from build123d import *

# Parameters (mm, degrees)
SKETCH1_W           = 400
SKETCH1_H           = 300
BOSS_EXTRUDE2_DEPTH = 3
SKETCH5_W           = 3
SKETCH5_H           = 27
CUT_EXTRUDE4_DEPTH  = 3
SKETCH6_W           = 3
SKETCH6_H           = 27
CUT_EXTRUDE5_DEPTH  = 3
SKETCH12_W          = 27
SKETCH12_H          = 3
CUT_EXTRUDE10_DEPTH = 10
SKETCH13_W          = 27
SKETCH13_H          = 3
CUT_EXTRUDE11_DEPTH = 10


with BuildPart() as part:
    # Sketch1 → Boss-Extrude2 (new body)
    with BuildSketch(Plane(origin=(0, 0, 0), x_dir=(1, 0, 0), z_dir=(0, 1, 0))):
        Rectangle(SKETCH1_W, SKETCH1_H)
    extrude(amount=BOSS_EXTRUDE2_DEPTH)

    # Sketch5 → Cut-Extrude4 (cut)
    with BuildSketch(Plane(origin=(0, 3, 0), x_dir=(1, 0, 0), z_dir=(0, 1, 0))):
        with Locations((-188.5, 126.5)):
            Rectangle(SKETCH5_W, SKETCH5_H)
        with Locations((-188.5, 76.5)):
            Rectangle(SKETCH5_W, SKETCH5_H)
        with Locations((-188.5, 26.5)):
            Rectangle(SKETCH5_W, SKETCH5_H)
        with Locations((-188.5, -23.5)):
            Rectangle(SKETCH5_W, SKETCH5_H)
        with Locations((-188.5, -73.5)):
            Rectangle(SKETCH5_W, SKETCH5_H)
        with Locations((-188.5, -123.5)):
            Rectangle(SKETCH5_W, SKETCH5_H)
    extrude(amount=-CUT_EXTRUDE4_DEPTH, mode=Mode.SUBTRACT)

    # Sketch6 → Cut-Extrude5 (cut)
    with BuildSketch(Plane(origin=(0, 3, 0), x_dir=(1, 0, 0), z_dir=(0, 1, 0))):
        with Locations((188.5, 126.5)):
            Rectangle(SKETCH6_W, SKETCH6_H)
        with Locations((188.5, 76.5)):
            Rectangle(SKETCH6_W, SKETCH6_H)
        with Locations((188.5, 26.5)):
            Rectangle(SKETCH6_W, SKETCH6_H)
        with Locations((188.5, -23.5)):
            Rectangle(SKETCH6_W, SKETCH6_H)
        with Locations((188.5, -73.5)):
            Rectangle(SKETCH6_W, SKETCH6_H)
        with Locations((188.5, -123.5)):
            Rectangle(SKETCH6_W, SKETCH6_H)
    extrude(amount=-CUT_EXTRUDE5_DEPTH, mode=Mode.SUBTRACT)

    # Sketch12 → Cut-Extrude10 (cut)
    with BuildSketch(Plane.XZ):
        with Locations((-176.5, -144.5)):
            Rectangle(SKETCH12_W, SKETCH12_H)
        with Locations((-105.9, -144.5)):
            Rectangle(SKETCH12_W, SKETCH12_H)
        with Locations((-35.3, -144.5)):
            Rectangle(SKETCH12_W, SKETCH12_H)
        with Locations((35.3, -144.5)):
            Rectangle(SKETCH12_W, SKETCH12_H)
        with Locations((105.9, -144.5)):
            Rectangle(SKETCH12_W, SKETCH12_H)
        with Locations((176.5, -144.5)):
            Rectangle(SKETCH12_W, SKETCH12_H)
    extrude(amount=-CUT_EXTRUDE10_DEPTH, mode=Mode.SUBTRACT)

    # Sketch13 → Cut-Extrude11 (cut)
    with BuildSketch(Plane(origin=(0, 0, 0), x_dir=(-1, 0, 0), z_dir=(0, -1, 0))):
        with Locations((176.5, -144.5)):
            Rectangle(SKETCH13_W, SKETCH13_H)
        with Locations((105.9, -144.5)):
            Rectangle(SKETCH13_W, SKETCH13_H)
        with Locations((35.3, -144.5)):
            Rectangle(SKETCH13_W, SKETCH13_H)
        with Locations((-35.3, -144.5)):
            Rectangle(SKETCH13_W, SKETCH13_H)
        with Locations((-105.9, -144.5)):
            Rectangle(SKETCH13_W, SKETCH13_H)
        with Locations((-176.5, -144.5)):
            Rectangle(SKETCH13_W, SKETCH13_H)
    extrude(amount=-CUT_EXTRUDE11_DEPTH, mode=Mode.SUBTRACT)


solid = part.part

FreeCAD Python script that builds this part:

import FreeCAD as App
import Part
import Sketcher

V = App.Vector


def add_polygon(sketch, points):
    """Adds a closed chain of lines whose ends are joined by coincident constraints."""
    first, n = sketch.GeometryCount, len(points)
    for a, b in zip(points, points[1:] + points[:1]):
        sketch.addGeometry(Part.LineSegment(App.Vector(*a, 0), App.Vector(*b, 0)), False)
    for i in range(n):
        sketch.addConstraint(Sketcher.Constraint("Coincident", first + i, 2, first + (i + 1) % n, 1))

doc = App.newDocument("Part")
body = doc.addObject("PartDesign::Body", "Body")

sketch1 = body.newObject("Sketcher::SketchObject", "Sketch")
sketch1.AttachmentSupport = (doc.getObject("XZ_Plane"), [""])
sketch1.MapMode = "FlatFace"
add_polygon(sketch1, [(-200, -150), (-200, 150), (200, 150), (200, -150)])
sketch1.addConstraint([
    Sketcher.Constraint("Vertical", 0),
    Sketcher.Constraint("Horizontal", 1),
    Sketcher.Constraint("Vertical", 2),
    Sketcher.Constraint("Horizontal", 3),
    Sketcher.Constraint("Symmetric", 0, 2, 2, 2, -1, 1),
    Sketcher.Constraint("DistanceX", 1, 1, 1, 2, 400.0),
    Sketcher.Constraint("DistanceY", 0, 1, 0, 2, 300.0),
])
pad1 = body.newObject("PartDesign::Pad", "Pad")
pad1.Profile = sketch1
pad1.Length = 3
pad1.Reversed = True

sketch2 = body.newObject("Sketcher::SketchObject", "Sketch001")
sketch2.AttachmentSupport = (doc.getObject("XZ_Plane"), [""])
sketch2.MapMode = "FlatFace"
sketch2.AttachmentOffset = App.Placement(V(0, 0, -3), App.Rotation())
add_polygon(sketch2, [(-190, -140), (-190, -113), (-187, -113), (-187, -140)])
add_polygon(sketch2, [(-190, -90), (-190, -63), (-187, -63), (-187, -90)])
add_polygon(sketch2, [(-190, -40), (-190, -13), (-187, -13), (-187, -40)])
add_polygon(sketch2, [(-190, 10), (-190, 37), (-187, 37), (-187, 10)])
add_polygon(sketch2, [(-190, 60), (-190, 87), (-187, 87), (-187, 60)])
add_polygon(sketch2, [(-190, 110), (-190, 137), (-187, 137), (-187, 110)])
sketch2.addConstraint([
    Sketcher.Constraint("Vertical", 0),
    Sketcher.Constraint("Horizontal", 1),
    Sketcher.Constraint("Vertical", 2),
    Sketcher.Constraint("Horizontal", 3),
    Sketcher.Constraint("Vertical", 4),
    Sketcher.Constraint("Horizontal", 5),
    Sketcher.Constraint("Vertical", 6),
    Sketcher.Constraint("Horizontal", 7),
    Sketcher.Constraint("Vertical", 8),
    Sketcher.Constraint("Horizontal", 9),
    Sketcher.Constraint("Vertical", 10),
    Sketcher.Constraint("Horizontal", 11),
    Sketcher.Constraint("Vertical", 12),
    Sketcher.Constraint("Horizontal", 13),
    Sketcher.Constraint("Vertical", 14),
    Sketcher.Constraint("Horizontal", 15),
    Sketcher.Constraint("Vertical", 16),
    Sketcher.Constraint("Horizontal", 17),
    Sketcher.Constraint("Vertical", 18),
    Sketcher.Constraint("Horizontal", 19),
    Sketcher.Constraint("Vertical", 20),
    Sketcher.Constraint("Horizontal", 21),
    Sketcher.Constraint("Vertical", 22),
    Sketcher.Constraint("Horizontal", 23),
    Sketcher.Constraint("Vertical", 3, 2, 4, 2),
    Sketcher.Constraint("Vertical", 2, 2, 5, 2),
    Sketcher.Constraint("Vertical", 7, 2, 8, 2),
    Sketcher.Constraint("Vertical", 6, 2, 9, 2),
    Sketcher.Constraint("Vertical", 11, 2, 12, 2),
    Sketcher.Constraint("Vertical", 10, 2, 13, 2),
    Sketcher.Constraint("Vertical", 15, 2, 16, 2),
    Sketcher.Constraint("Vertical", 14, 2, 17, 2),
    Sketcher.Constraint("Vertical", 19, 2, 20, 2),
    Sketcher.Constraint("Vertical", 18, 2, 21, 2),
    Sketcher.Constraint("Equal", 2, 4),
    Sketcher.Constraint("Equal", 6, 8),
    Sketcher.Constraint("Equal", 10, 12),
    Sketcher.Constraint("Equal", 14, 16),
    Sketcher.Constraint("Equal", 18, 20),
    Sketcher.Constraint("DistanceX", 1, 1, 1, 2, 3.0),
    Sketcher.Constraint("DistanceY", 0, 1, 0, 2, 27.0),
    Sketcher.Constraint("DistanceX", 0, 2, -1, 1, 190.0),
    Sketcher.Constraint("DistanceY", 0, 2, -1, 1, 113.0),
    Sketcher.Constraint("DistanceY", 4, 2, -1, 1, 63.0),
    Sketcher.Constraint("DistanceY", 8, 2, -1, 1, 13.0),
    Sketcher.Constraint("DistanceY", -1, 1, 12, 2, 37.0),
    Sketcher.Constraint("DistanceY", -1, 1, 16, 2, 87.0),
    Sketcher.Constraint("DistanceY", -1, 1, 20, 2, 137.0),
])
pocket1 = body.newObject("PartDesign::Pocket", "Pocket")
pocket1.Profile = sketch2
pocket1.Length = 3
pocket1.Reversed = True

sketch3 = body.newObject("Sketcher::SketchObject", "Sketch002")
sketch3.AttachmentSupport = (doc.getObject("XZ_Plane"), [""])
sketch3.MapMode = "FlatFace"
sketch3.AttachmentOffset = App.Placement(V(0, 0, -3), App.Rotation())
add_polygon(sketch3, [(187, -140), (187, -113), (190, -113), (190, -140)])
add_polygon(sketch3, [(187, -90), (187, -63), (190, -63), (190, -90)])
add_polygon(sketch3, [(187, -40), (187, -13), (190, -13), (190, -40)])
add_polygon(sketch3, [(187, 10), (187, 37), (190, 37), (190, 10)])
add_polygon(sketch3, [(187, 60), (187, 87), (190, 87), (190, 60)])
add_polygon(sketch3, [(187, 110), (187, 137), (190, 137), (190, 110)])
sketch3.addConstraint([
    Sketcher.Constraint("Vertical", 0),
    Sketcher.Constraint("Horizontal", 1),
    Sketcher.Constraint("Vertical", 2),
    Sketcher.Constraint("Horizontal", 3),
    Sketcher.Constraint("Vertical", 4),
    Sketcher.Constraint("Horizontal", 5),
    Sketcher.Constraint("Vertical", 6),
    Sketcher.Constraint("Horizontal", 7),
    Sketcher.Constraint("Vertical", 8),
    Sketcher.Constraint("Horizontal", 9),
    Sketcher.Constraint("Vertical", 10),
    Sketcher.Constraint("Horizontal", 11),
    Sketcher.Constraint("Vertical", 12),
    Sketcher.Constraint("Horizontal", 13),
    Sketcher.Constraint("Vertical", 14),
    Sketcher.Constraint("Horizontal", 15),
    Sketcher.Constraint("Vertical", 16),
    Sketcher.Constraint("Horizontal", 17),
    Sketcher.Constraint("Vertical", 18),
    Sketcher.Constraint("Horizontal", 19),
    Sketcher.Constraint("Vertical", 20),
    Sketcher.Constraint("Horizontal", 21),
    Sketcher.Constraint("Vertical", 22),
    Sketcher.Constraint("Horizontal", 23),
    Sketcher.Constraint("Vertical", 3, 2, 4, 2),
    Sketcher.Constraint("Vertical", 2, 2, 5, 2),
    Sketcher.Constraint("Vertical", 7, 2, 8, 2),
    Sketcher.Constraint("Vertical", 6, 2, 9, 2),
    Sketcher.Constraint("Vertical", 11, 2, 12, 2),
    Sketcher.Constraint("Vertical", 10, 2, 13, 2),
    Sketcher.Constraint("Vertical", 15, 2, 16, 2),
    Sketcher.Constraint("Vertical", 14, 2, 17, 2),
    Sketcher.Constraint("Vertical", 19, 2, 20, 2),
    Sketcher.Constraint("Vertical", 18, 2, 21, 2),
    Sketcher.Constraint("Equal", 2, 4),
    Sketcher.Constraint("Equal", 6, 8),
    Sketcher.Constraint("Equal", 10, 12),
    Sketcher.Constraint("Equal", 14, 16),
    Sketcher.Constraint("Equal", 18, 20),
    Sketcher.Constraint("DistanceX", 1, 1, 1, 2, 3.0),
    Sketcher.Constraint("DistanceY", 0, 1, 0, 2, 27.0),
    Sketcher.Constraint("DistanceX", -1, 1, 0, 2, 187.0),
    Sketcher.Constraint("DistanceY", 0, 2, -1, 1, 113.0),
    Sketcher.Constraint("DistanceY", 4, 2, -1, 1, 63.0),
    Sketcher.Constraint("DistanceY", 8, 2, -1, 1, 13.0),
    Sketcher.Constraint("DistanceY", -1, 1, 12, 2, 37.0),
    Sketcher.Constraint("DistanceY", -1, 1, 16, 2, 87.0),
    Sketcher.Constraint("DistanceY", -1, 1, 20, 2, 137.0),
])
pocket2 = body.newObject("PartDesign::Pocket", "Pocket001")
pocket2.Profile = sketch3
pocket2.Length = 3
pocket2.Reversed = True

sketch4 = body.newObject("Sketcher::SketchObject", "Sketch003")
sketch4.AttachmentSupport = (doc.getObject("XZ_Plane"), [""])
sketch4.MapMode = "FlatFace"
add_polygon(sketch4, [(-190, -143), (-190, -146), (-163, -146), (-163, -143)])
add_polygon(sketch4, [(-119.4, -143), (-119.4, -146), (-92.4, -146), (-92.4, -143)])
add_polygon(sketch4, [(-48.8, -143), (-48.8, -146), (-21.8, -146), (-21.8, -143)])
add_polygon(sketch4, [(21.8, -143), (21.8, -146), (48.8, -146), (48.8, -143)])
add_polygon(sketch4, [(92.4, -143), (92.4, -146), (119.4, -146), (119.4, -143)])
add_polygon(sketch4, [(163, -143), (163, -146), (190, -146), (190, -143)])
sketch4.addConstraint([
    Sketcher.Constraint("Vertical", 0),
    Sketcher.Constraint("Horizontal", 1),
    Sketcher.Constraint("Vertical", 2),
    Sketcher.Constraint("Horizontal", 3),
    Sketcher.Constraint("Vertical", 4),
    Sketcher.Constraint("Horizontal", 5),
    Sketcher.Constraint("Vertical", 6),
    Sketcher.Constraint("Horizontal", 7),
    Sketcher.Constraint("Vertical", 8),
    Sketcher.Constraint("Horizontal", 9),
    Sketcher.Constraint("Vertical", 10),
    Sketcher.Constraint("Horizontal", 11),
    Sketcher.Constraint("Vertical", 12),
    Sketcher.Constraint("Horizontal", 13),
    Sketcher.Constraint("Vertical", 14),
    Sketcher.Constraint("Horizontal", 15),
    Sketcher.Constraint("Vertical", 16),
    Sketcher.Constraint("Horizontal", 17),
    Sketcher.Constraint("Vertical", 18),
    Sketcher.Constraint("Horizontal", 19),
    Sketcher.Constraint("Vertical", 20),
    Sketcher.Constraint("Horizontal", 21),
    Sketcher.Constraint("Vertical", 22),
    Sketcher.Constraint("Horizontal", 23),
    Sketcher.Constraint("Symmetric", 9, 2, 12, 2, -2),
    Sketcher.Constraint("Symmetric", 11, 2, 14, 2, -2),
    Sketcher.Constraint("Symmetric", 5, 2, 16, 2, -2),
    Sketcher.Constraint("Symmetric", 7, 2, 18, 2, -2),
    Sketcher.Constraint("Symmetric", 1, 2, 20, 2, -2),
    Sketcher.Constraint("Symmetric", 3, 2, 22, 2, -2),
    Sketcher.Constraint("Horizontal", 1, 2, 4, 2),
    Sketcher.Constraint("Horizontal", 3, 2, 6, 2),
    Sketcher.Constraint("Horizontal", 5, 2, 8, 2),
    Sketcher.Constraint("Horizontal", 7, 2, 10, 2),
    Sketcher.Constraint("Equal", 3, 5),
    Sketcher.Constraint("Equal", 7, 9),
    Sketcher.Constraint("DistanceX", 1, 1, 1, 2, 27.0),
    Sketcher.Constraint("DistanceY", 0, 2, 0, 1, 3.0),
    Sketcher.Constraint("DistanceX", 0, 2, -1, 1, 190.0),
    Sketcher.Constraint("DistanceY", 0, 2, -1, 1, 146.0),
    Sketcher.Constraint("DistanceX", 4, 2, -1, 1, 119.4),
    Sketcher.Constraint("DistanceX", 8, 2, -1, 1, 48.8),
])
pocket3 = body.newObject("PartDesign::Pocket", "Pocket002")
pocket3.Profile = sketch4
pocket3.Length = 10

sketch5 = body.newObject("Sketcher::SketchObject", "Sketch004")
sketch5.AttachmentSupport = (doc.getObject("XZ_Plane"), [""])
sketch5.MapMode = "FlatFace"
add_polygon(sketch5, [(-163, 143), (-163, 146), (-190, 146), (-190, 143)])
add_polygon(sketch5, [(-92.4, 143), (-92.4, 146), (-119.4, 146), (-119.4, 143)])
add_polygon(sketch5, [(-21.8, 143), (-21.8, 146), (-48.8, 146), (-48.8, 143)])
add_polygon(sketch5, [(48.8, 143), (48.8, 146), (21.8, 146), (21.8, 143)])
add_polygon(sketch5, [(119.4, 143), (119.4, 146), (92.4, 146), (92.4, 143)])
add_polygon(sketch5, [(190, 143), (190, 146), (163, 146), (163, 143)])
sketch5.addConstraint([
    Sketcher.Constraint("Vertical", 0),
    Sketcher.Constraint("Horizontal", 1),
    Sketcher.Constraint("Vertical", 2),
    Sketcher.Constraint("Horizontal", 3),
    Sketcher.Constraint("Vertical", 4),
    Sketcher.Constraint("Horizontal", 5),
    Sketcher.Constraint("Vertical", 6),
    Sketcher.Constraint("Horizontal", 7),
    Sketcher.Constraint("Vertical", 8),
    Sketcher.Constraint("Horizontal", 9),
    Sketcher.Constraint("Vertical", 10),
    Sketcher.Constraint("Horizontal", 11),
    Sketcher.Constraint("Vertical", 12),
    Sketcher.Constraint("Horizontal", 13),
    Sketcher.Constraint("Vertical", 14),
    Sketcher.Constraint("Horizontal", 15),
    Sketcher.Constraint("Vertical", 16),
    Sketcher.Constraint("Horizontal", 17),
    Sketcher.Constraint("Vertical", 18),
    Sketcher.Constraint("Horizontal", 19),
    Sketcher.Constraint("Vertical", 20),
    Sketcher.Constraint("Horizontal", 21),
    Sketcher.Constraint("Vertical", 22),
    Sketcher.Constraint("Horizontal", 23),
    Sketcher.Constraint("Symmetric", 9, 2, 12, 2, -2),
    Sketcher.Constraint("Symmetric", 11, 2, 14, 2, -2),
    Sketcher.Constraint("Symmetric", 5, 2, 16, 2, -2),
    Sketcher.Constraint("Symmetric", 7, 2, 18, 2, -2),
    Sketcher.Constraint("Symmetric", 1, 2, 20, 2, -2),
    Sketcher.Constraint("Symmetric", 3, 2, 22, 2, -2),
    Sketcher.Constraint("Horizontal", 1, 2, 4, 2),
    Sketcher.Constraint("Horizontal", 3, 2, 6, 2),
    Sketcher.Constraint("Horizontal", 5, 2, 8, 2),
    Sketcher.Constraint("Horizontal", 7, 2, 10, 2),
    Sketcher.Constraint("Equal", 3, 5),
    Sketcher.Constraint("Equal", 7, 9),
    Sketcher.Constraint("DistanceX", 1, 2, 1, 1, 27.0),
    Sketcher.Constraint("DistanceY", 0, 1, 0, 2, 3.0),
    Sketcher.Constraint("DistanceX", 0, 2, -1, 1, 163.0),
    Sketcher.Constraint("DistanceY", -1, 1, 0, 2, 146.0),
    Sketcher.Constraint("DistanceX", 4, 2, -1, 1, 92.4),
    Sketcher.Constraint("DistanceX", 8, 2, -1, 1, 21.8),
])
pocket4 = body.newObject("PartDesign::Pocket", "Pocket003")
pocket4.Profile = sketch5
pocket4.Length = 10

doc.recompute()
